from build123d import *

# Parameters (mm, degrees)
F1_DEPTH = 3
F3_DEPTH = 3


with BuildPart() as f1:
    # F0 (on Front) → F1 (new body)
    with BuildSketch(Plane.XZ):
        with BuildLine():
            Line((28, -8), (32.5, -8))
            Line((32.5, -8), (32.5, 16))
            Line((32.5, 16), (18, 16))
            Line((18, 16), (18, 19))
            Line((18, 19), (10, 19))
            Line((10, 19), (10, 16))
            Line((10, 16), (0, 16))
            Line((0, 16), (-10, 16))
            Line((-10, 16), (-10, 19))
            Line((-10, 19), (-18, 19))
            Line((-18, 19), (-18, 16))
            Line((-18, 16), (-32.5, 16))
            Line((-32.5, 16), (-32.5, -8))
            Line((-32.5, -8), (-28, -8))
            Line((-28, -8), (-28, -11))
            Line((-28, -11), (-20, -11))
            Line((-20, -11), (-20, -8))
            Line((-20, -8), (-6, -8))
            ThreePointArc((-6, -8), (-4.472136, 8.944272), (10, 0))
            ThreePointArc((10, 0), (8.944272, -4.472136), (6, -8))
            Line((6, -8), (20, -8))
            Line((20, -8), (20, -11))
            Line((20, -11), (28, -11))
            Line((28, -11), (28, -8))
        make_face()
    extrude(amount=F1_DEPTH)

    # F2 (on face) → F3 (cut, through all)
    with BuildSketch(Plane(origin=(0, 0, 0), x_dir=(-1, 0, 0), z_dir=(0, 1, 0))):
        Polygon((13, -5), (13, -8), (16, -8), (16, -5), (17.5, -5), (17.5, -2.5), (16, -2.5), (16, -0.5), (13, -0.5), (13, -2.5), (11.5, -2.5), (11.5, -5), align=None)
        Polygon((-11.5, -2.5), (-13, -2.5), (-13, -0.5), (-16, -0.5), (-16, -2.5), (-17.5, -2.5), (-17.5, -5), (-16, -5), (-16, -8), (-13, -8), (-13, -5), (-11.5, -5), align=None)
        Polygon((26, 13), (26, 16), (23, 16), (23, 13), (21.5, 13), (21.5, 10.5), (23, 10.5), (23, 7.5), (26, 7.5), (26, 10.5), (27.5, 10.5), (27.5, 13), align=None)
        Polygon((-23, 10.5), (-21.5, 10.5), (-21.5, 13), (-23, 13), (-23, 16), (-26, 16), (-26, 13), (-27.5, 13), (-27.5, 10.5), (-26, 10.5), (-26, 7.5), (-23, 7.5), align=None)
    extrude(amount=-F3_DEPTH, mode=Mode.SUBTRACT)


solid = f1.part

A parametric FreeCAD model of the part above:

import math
import FreeCAD as App
import Part
import Sketcher
Q = App.Units.Quantity

doc = App.newDocument("Part")
body = doc.addObject("PartDesign::Body", "Body")

# Sketch on XZ plane
sketch1 = doc.addObject("Sketcher::SketchObject", "Sketch")
body.addObject(sketch1)
sketch1.AttachmentSupport = (doc.XZ_Plane, [""])
sketch1.MapMode = "FlatFace"
sketch1.addGeometry([
    Part.LineSegment(App.Vector(28, -8, 0), App.Vector(32.5, -8, 0)),  # 0
    Part.LineSegment(App.Vector(32.5, -8, 0), App.Vector(32.5, 16, 0)),  # 1
    Part.LineSegment(App.Vector(32.5, 16, 0), App.Vector(18, 16, 0)),  # 2
    Part.LineSegment(App.Vector(18, 16, 0), App.Vector(18, 19, 0)),  # 3
    Part.LineSegment(App.Vector(18, 19, 0), App.Vector(10, 19, 0)),  # 4
    Part.LineSegment(App.Vector(10, 19, 0), App.Vector(10, 16, 0)),  # 5
    Part.LineSegment(App.Vector(10, 16, 0), App.Vector(-10, 16, 0)),  # 6
    Part.LineSegment(App.Vector(-10, 16, 0), App.Vector(-10, 19, 0)),  # 7
    Part.LineSegment(App.Vector(-10, 19, 0), App.Vector(-18, 19, 0)),  # 8
    Part.LineSegment(App.Vector(-18, 19, 0), App.Vector(-18, 16, 0)),  # 9
    Part.LineSegment(App.Vector(-18, 16, 0), App.Vector(-32.5, 16, 0)),  # 10
    Part.LineSegment(App.Vector(-32.5, 16, 0), App.Vector(-32.5, -8, 0)),  # 11
    Part.LineSegment(App.Vector(-32.5, -8, 0), App.Vector(-28, -8, 0)),  # 12
    Part.LineSegment(App.Vector(-28, -8, 0), App.Vector(-28, -11, 0)),  # 13
    Part.LineSegment(App.Vector(-28, -11, 0), App.Vector(-20, -11, 0)),  # 14
    Part.LineSegment(App.Vector(-20, -11, 0), App.Vector(-20, -8, 0)),  # 15
    Part.LineSegment(App.Vector(-20, -8, 0), App.Vector(-6, -8, 0)),  # 16
    Part.ArcOfCircle(Part.Circle(App.Vector(0, 0, 0), App.Vector(0, 0, 1), 10), math.radians(0), math.radians(233)),  # 17
    Part.ArcOfCircle(Part.Circle(App.Vector(0, 0, 0), App.Vector(0, 0, 1), 10), math.radians(-53), math.radians(0)),  # 18
    Part.LineSegment(App.Vector(6, -8, 0), App.Vector(20, -8, 0)),  # 19
    Part.LineSegment(App.Vector(20, -8, 0), App.Vector(20, -11, 0)),  # 20
    Part.LineSegment(App.Vector(20, -11, 0), App.Vector(28, -11, 0)),  # 21
    Part.LineSegment(App.Vector(28, -11, 0), App.Vector(28, -8, 0)),  # 22
], False)
sketch1.addConstraint([
    Sketcher.Constraint("Coincident", 0, 2, 1, 1),
    Sketcher.Constraint("Coincident", 1, 2, 2, 1),
    Sketcher.Constraint("Coincident", 2, 2, 3, 1),
    Sketcher.Constraint("Coincident", 3, 2, 4, 1),
    Sketcher.Constraint("Coincident", 4, 2, 5, 1),
    Sketcher.Constraint("Coincident", 5, 2, 6, 1),
    Sketcher.Constraint("Coincident", 6, 2, 7, 1),
    Sketcher.Constraint("Coincident", 7, 2, 8, 1),
    Sketcher.Constraint("Coincident", 8, 2, 9, 1),
    Sketcher.Constraint("Coincident", 9, 2, 10, 1),
    Sketcher.Constraint("Coincident", 10, 2, 11, 1),
    Sketcher.Constraint("Coincident", 11, 2, 12, 1),
    Sketcher.Constraint("Coincident", 12, 2, 13, 1),
    Sketcher.Constraint("Coincident", 13, 2, 14, 1),
    Sketcher.Constraint("Coincident", 14, 2, 15, 1),
    Sketcher.Constraint("Coincident", 15, 2, 16, 1),
    Sketcher.Constraint("Coincident", 16, 2, 17, 2),
    Sketcher.Constraint("Tangent", 17, 1, 18, 2),
    Sketcher.Constraint("Coincident", 18, 1, 19, 1),
    Sketcher.Constraint("Coincident", 19, 2, 20, 1),
    Sketcher.Constraint("Coincident", 20, 2, 21, 1),
    Sketcher.Constraint("Coincident", 21, 2, 22, 1),
    Sketcher.Constraint("Coincident", 22, 2, 0, 1),
    Sketcher.Constraint("Horizontal", 0),
    Sketcher.Constraint("Vertical", 1),
    Sketcher.Constraint("Horizontal", 2),
    Sketcher.Constraint("Vertical", 3),
    Sketcher.Constraint("Horizontal", 4),
    Sketcher.Constraint("Vertical", 5),
    Sketcher.Constraint("Horizontal", 6),
    Sketcher.Constraint("Vertical", 7),
    Sketcher.Constraint("Horizontal", 8),
    Sketcher.Constraint("Vertical", 9),
    Sketcher.Constraint("Horizontal", 10),
    Sketcher.Constraint("Vertical", 11),
    Sketcher.Constraint("Horizontal", 12),
    Sketcher.Constraint("Vertical", 13),
    Sketcher.Constraint("Horizontal", 14),
    Sketcher.Constraint("Vertical", 15),
    Sketcher.Constraint("Horizontal", 16),
    Sketcher.Constraint("Horizontal", 19),
    Sketcher.Constraint("Vertical", 20),
    Sketcher.Constraint("Horizontal", 21),
    Sketcher.Constraint("Vertical", 22),
    Sketcher.Constraint("Coincident", 17, 3, -1, 1),
    Sketcher.Constraint("Equal", 17, 18),
    Sketcher.Constraint("Symmetric", 4, 2, 7, 2, -2),
    Sketcher.Constraint("Symmetric", 2, 2, 9, 2, -2),
    Sketcher.Constraint("Symmetric", 0, 2, 11, 2, -2),
    Sketcher.Constraint("Symmetric", 15, 2, 19, 2, -2),
    Sketcher.Constraint("Symmetric", 13, 2, 21, 2, -2),
    Sketcher.Constraint("PointOnObject", 17, 1, -1),
    Sketcher.Constraint("Horizontal", 2, 2, 5, 2),
    Sketcher.Constraint("Horizontal", 12, 2, 15, 2),
    Sketcher.Constraint("Vertical", 5, 2, 17, 1),
    Sketcher.Constraint("Equal", 8, 14),
    Sketcher.Constraint("Equal", 9, 13),
    Sketcher.Constraint("Radius", 17, Q("10 mm")),
    Sketcher.Constraint("DistanceX", 4, 2, 4, 1, Q("8 mm")),
    Sketcher.Constraint("DistanceX", 16, 1, 16, 2, Q("14 mm")),
    Sketcher.Constraint("DistanceY", 1, 1, 1, 2, Q("24 mm")),
    Sketcher.Constraint("DistanceY", 3, 1, 3, 2, Q("3 mm")),
    Sketcher.Constraint("DistanceX", 0, 1, 0, 2, Q("4.5 mm")),
    Sketcher.Constraint("DistanceX", 2, 2, 2, 1, Q("14.5 mm")),
])
pad1 = doc.addObject("PartDesign::Pad", "Pad")
body.addObject(pad1)
pad1.Profile = sketch1
pad1.Length = 3

# Sketch on XZ plane
sketch2 = doc.addObject("Sketcher::SketchObject", "Sketch001")
body.addObject(sketch2)
sketch2.AttachmentSupport = (doc.XZ_Plane, [""])
sketch2.MapMode = "FlatFace"
sketch2.addGeometry([
    Part.LineSegment(App.Vector(-13, -5, 0), App.Vector(-13, -8, 0)),  # 0
    Part.LineSegment(App.Vector(-13, -8, 0), App.Vector(-16, -8, 0)),  # 1
    Part.LineSegment(App.Vector(-16, -8, 0), App.Vector(-16, -5, 0)),  # 2
    Part.LineSegment(App.Vector(-16, -5, 0), App.Vector(-17.5, -5, 0)),  # 3
    Part.LineSegment(App.Vector(-17.5, -5, 0), App.Vector(-17.5, -2.5, 0)),  # 4
    Part.LineSegment(App.Vector(-17.5, -2.5, 0), App.Vector(-16, -2.5, 0)),  # 5
    Part.LineSegment(App.Vector(-16, -2.5, 0), App.Vector(-16, -0.5, 0)),  # 6
    Part.LineSegment(App.Vector(-16, -0.5, 0), App.Vector(-13, -0.5, 0)),  # 7
    Part.LineSegment(App.Vector(-13, -0.5, 0), App.Vector(-13, -2.5, 0)),  # 8
    Part.LineSegment(App.Vector(-13, -2.5, 0), App.Vector(-11.5, -2.5, 0)),  # 9
    Part.LineSegment(App.Vector(-11.5, -2.5, 0), App.Vector(-11.5, -5, 0)),  # 10
    Part.LineSegment(App.Vector(-11.5, -5, 0), App.Vector(-13, -5, 0)),  # 11
    Part.LineSegment(App.Vector(11.5, -2.5, 0), App.Vector(13, -2.5, 0)),  # 12
    Part.LineSegment(App.Vector(13, -2.5, 0), App.Vector(13, -0.5, 0)),  # 13
    Part.LineSegment(App.Vector(13, -0.5, 0), App.Vector(16, -0.5, 0)),  # 14
    Part.LineSegment(App.Vector(16, -0.5, 0), App.Vector(16, -2.5, 0)),  # 15
    Part.LineSegment(App.Vector(16, -2.5, 0), App.Vector(17.5, -2.5, 0)),  # 16
    Part.LineSegment(App.Vector(17.5, -2.5, 0), App.Vector(17.5, -5, 0)),  # 17
    Part.LineSegment(App.Vector(17.5, -5, 0), App.Vector(16, -5, 0)),  # 18
    Part.LineSegment(App.Vector(16, -5, 0), App.Vector(16, -8, 0)),  # 19
    Part.LineSegment(App.Vector(16, -8, 0), App.Vector(13, -8, 0)),  # 20
    Part.LineSegment(App.Vector(13, -8, 0), App.Vector(13, -5, 0)),  # 21
    Part.LineSegment(App.Vector(13, -5, 0), App.Vector(11.5, -5, 0)),  # 22
    Part.LineSegment(App.Vector(11.5, -5, 0), App.Vector(11.5, -2.5, 0)),  # 23
    Part.LineSegment(App.Vector(-26, 13, 0), App.Vector(-26, 16, 0)),  # 24
    Part.LineSegment(App.Vector(-26, 16, 0), App.Vector(-23, 16, 0)),  # 25
    Part.LineSegment(App.Vector(-23, 16, 0), App.Vector(-23, 13, 0)),  # 26
    Part.LineSegment(App.Vector(-23, 13, 0), App.Vector(-21.5, 13, 0)),  # 27
    Part.LineSegment(App.Vector(-21.5, 13, 0), App.Vector(-21.5, 10.5, 0)),  # 28
    Part.LineSegment(App.Vector(-21.5, 10.5, 0), App.Vector(-23, 10.5, 0)),  # 29
    Part.LineSegment(App.Vector(-23, 10.5, 0), App.Vector(-23, 7.5, 0)),  # 30
    Part.LineSegment(App.Vector(-23, 7.5, 0), App.Vector(-26, 7.5, 0)),  # 31
    Part.LineSegment(App.Vector(-26, 7.5, 0), App.Vector(-26, 10.5, 0)),  # 32
    Part.LineSegment(App.Vector(-26, 10.5, 0), App.Vector(-27.5, 10.5, 0)),  # 33
    Part.LineSegment(App.Vector(-27.5, 10.5, 0), App.Vector(-27.5, 13, 0)),  # 34
    Part.LineSegment(App.Vector(-27.5, 13, 0), App.Vector(-26, 13, 0)),  # 35
    Part.LineSegment(App.Vector(23, 10.5, 0), App.Vector(21.5, 10.5, 0)),  # 36
    Part.LineSegment(App.Vector(21.5, 10.5, 0), App.Vector(21.5, 13, 0)),  # 37
    Part.LineSegment(App.Vector(21.5, 13, 0), App.Vector(23, 13, 0)),  # 38
    Part.LineSegment(App.Vector(23, 13, 0), App.Vector(23, 16, 0)),  # 39
    Part.LineSegment(App.Vector(23, 16, 0), App.Vector(26, 16, 0)),  # 40
    Part.LineSegment(App.Vector(26, 16, 0), App.Vector(26, 13, 0)),  # 41
    Part.LineSegment(App.Vector(26, 13, 0), App.Vector(27.5, 13, 0)),  # 42
    Part.LineSegment(App.Vector(27.5, 13, 0), App.Vector(27.5, 10.5, 0)),  # 43
    Part.LineSegment(App.Vector(27.5, 10.5, 0), App.Vector(26, 10.5, 0)),  # 44
    Part.LineSegment(App.Vector(26, 10.5, 0), App.Vector(26, 7.5, 0)),  # 45
    Part.LineSegment(App.Vector(26, 7.5, 0), App.Vector(23, 7.5, 0)),  # 46
    Part.LineSegment(App.Vector(23, 7.5, 0), App.Vector(23, 10.5, 0)),  # 47
], False)
sketch2.addConstraint([
    Sketcher.Constraint("Coincident", 0, 2, 1, 1),
    Sketcher.Constraint("Coincident", 1, 2, 2, 1),
    Sketcher.Constraint("Coincident", 2, 2, 3, 1),
    Sketcher.Constraint("Coincident", 3, 2, 4, 1),
    Sketcher.Constraint("Coincident", 4, 2, 5, 1),
    Sketcher.Constraint("Coincident", 5, 2, 6, 1),
    Sketcher.Constraint("Coincident", 6, 2, 7, 1),
    Sketcher.Constraint("Coincident", 7, 2, 8, 1),
    Sketcher.Constraint("Coincident", 8, 2, 9, 1),
    Sketcher.Constraint("Coincident", 9, 2, 10, 1),
    Sketcher.Constraint("Coincident", 10, 2, 11, 1),
    Sketcher.Constraint("Coincident", 11, 2, 0, 1),
    Sketcher.Constraint("Coincident", 12, 2, 13, 1),
    Sketcher.Constraint("Coincident", 13, 2, 14, 1),
    Sketcher.Constraint("Coincident", 14, 2, 15, 1),
    Sketcher.Constraint("Coincident", 15, 2, 16, 1),
    Sketcher.Constraint("Coincident", 16, 2, 17, 1),
    Sketcher.Constraint("Coincident", 17, 2, 18, 1),
    Sketcher.Constraint("Coincident", 18, 2, 19, 1),
    Sketcher.Constraint("Coincident", 19, 2, 20, 1),
    Sketcher.Constraint("Coincident", 20, 2, 21, 1),
    Sketcher.Constraint("Coincident", 21, 2, 22, 1),
    Sketcher.Constraint("Coincident", 22, 2, 23, 1),
    Sketcher.Constraint("Coincident", 23, 2, 12, 1),
    Sketcher.Constraint("Coincident", 24, 2, 25, 1),
    Sketcher.Constraint("Coincident", 25, 2, 26, 1),
    Sketcher.Constraint("Coincident", 26, 2, 27, 1),
    Sketcher.Constraint("Coincident", 27, 2, 28, 1),
    Sketcher.Constraint("Coincident", 28, 2, 29, 1),
    Sketcher.Constraint("Coincident", 29, 2, 30, 1),
    Sketcher.Constraint("Coincident", 30, 2, 31, 1),
    Sketcher.Constraint("Coincident", 31, 2, 32, 1),
    Sketcher.Constraint("Coincident", 32, 2, 33, 1),
    Sketcher.Constraint("Coincident", 33, 2, 34, 1),
    Sketcher.Constraint("Coincident", 34, 2, 35, 1),
    Sketcher.Constraint("Coincident", 35, 2, 24, 1),
    Sketcher.Constraint("Coincident", 36, 2, 37, 1),
    Sketcher.Constraint("Coincident", 37, 2, 38, 1),
    Sketcher.Constraint("Coincident", 38, 2, 39, 1),
    Sketcher.Constraint("Coincident", 39, 2, 40, 1),
    Sketcher.Constraint("Coincident", 40, 2, 41, 1),
    Sketcher.Constraint("Coincident", 41, 2, 42, 1),
    Sketcher.Constraint("Coincident", 42, 2, 43, 1),
    Sketcher.Constraint("Coincident", 43, 2, 44, 1),
    Sketcher.Constraint("Coincident", 44, 2, 45, 1),
    Sketcher.Constraint("Coincident", 45, 2, 46, 1),
    Sketcher.Constraint("Coincident", 46, 2, 47, 1),
    Sketcher.Constraint("Coincident", 47, 2, 36, 1),
    Sketcher.Constraint("Vertical", 0),
    Sketcher.Constraint("Horizontal", 1),
    Sketcher.Constraint("Vertical", 2),
    Sketcher.Constraint("Horizontal", 3),
    Sketcher.Constraint("Vertical", 4),
    Sketcher.Constraint("Horizontal", 5),
    Sketcher.Constraint("Vertical", 6),
    Sketcher.Constraint("Horizontal", 7),
    Sketcher.Constraint("Vertical", 8),
    Sketcher.Constraint("Horizontal", 9),
    Sketcher.Constraint("Vertical", 10),
    Sketcher.Constraint("Horizontal", 11),
    Sketcher.Constraint("Horizontal", 12),
    Sketcher.Constraint("Vertical", 13),
    Sketcher.Constraint("Horizontal", 14),
    Sketcher.Constraint("Vertical", 15),
    Sketcher.Constraint("Horizontal", 16),
    Sketcher.Constraint("Vertical", 17),
    Sketcher.Constraint("Horizontal", 18),
    Sketcher.Constraint("Vertical", 19),
    Sketcher.Constraint("Horizontal", 20),
    Sketcher.Constraint("Vertical", 21),
    Sketcher.Constraint("Horizontal", 22),
    Sketcher.Constraint("Vertical", 23),
    Sketcher.Constraint("Vertical", 24),
    Sketcher.Constraint("Horizontal", 25),
    Sketcher.Constraint("Vertical", 26),
    Sketcher.Constraint("Horizontal", 27),
    Sketcher.Constraint("Vertical", 28),
    Sketcher.Constraint("Horizontal", 29),
    Sketcher.Constraint("Vertical", 30),
    Sketcher.Constraint("Horizontal", 31),
    Sketcher.Constraint("Vertical", 32),
    Sketcher.Constraint("Horizontal", 33),
    Sketcher.Constraint("Vertical", 34),
    Sketcher.Constraint("Horizontal", 35),
    Sketcher.Constraint("Horizontal", 36),
    Sketcher.Constraint("Vertical", 37),
    Sketcher.Constraint("Horizontal", 38),
    Sketcher.Constraint("Vertical", 39),
    Sketcher.Constraint("Horizontal", 40),
    Sketcher.Constraint("Vertical", 41),
    Sketcher.Constraint("Horizontal", 42),
    Sketcher.Constraint("Vertical", 43),
    Sketcher.Constraint("Horizontal", 44),
    Sketcher.Constraint("Vertical", 45),
    Sketcher.Constraint("Horizontal", 46),
    Sketcher.Constraint("Vertical", 47),
    Sketcher.Constraint("Symmetric", 8, 2, 12, 2, -2),
    Sketcher.Constraint("Symmetric", 6, 2, 14, 2, -2),
    Sketcher.Constraint("Symmetric", 4, 2, 16, 2, -2),
    Sketcher.Constraint("Symmetric", 2, 2, 18, 2, -2),
    Sketcher.Constraint("Symmetric", 0, 2, 20, 2, -2),
    Sketcher.Constraint("Symmetric", 10, 2, 22, 2, -2),
    Sketcher.Constraint("Symmetric", 28, 2, 36, 2, -2),
    Sketcher.Constraint("Symmetric", 26, 2, 38, 2, -2),
    Sketcher.Constraint("Symmetric", 24, 2, 40, 2, -2),
    Sketcher.Constraint("Symmetric", 34, 2, 42, 2, -2),
    Sketcher.Constraint("Symmetric", 32, 2, 44, 2, -2),
    Sketcher.Constraint("Symmetric", 30, 2, 46, 2, -2),
    Sketcher.Constraint("Horizontal", 5, 2, 8, 2),
    Sketcher.Constraint("Horizontal", 3, 2, 10, 2),
    Sketcher.Constraint("Horizontal", 29, 2, 32, 2),
    Sketcher.Constraint("Horizontal", 27, 2, 34, 2),
    Sketcher.Constraint("Vertical", 2, 2, 5, 2),
    Sketcher.Constraint("Vertical", 0, 2, 7, 2),
    Sketcher.Constraint("Vertical", 26, 2, 29, 2),
    Sketcher.Constraint("Vertical", 24, 2, 31, 2),
    Sketcher.Constraint("Equal", 5, 9),
    Sketcher.Constraint("Equal", 20, 25),
    Sketcher.Constraint("Equal", 22, 27),
    Sketcher.Constraint("Equal", 29, 33),
    Sketcher.Constraint("Equal", 46, 0),
    Sketcher.Constraint("Equal", 21, 24),
    Sketcher.Constraint("Equal", 23, 28),
    Sketcher.Constraint("Equal", 26, 30),
    Sketcher.Constraint("DistanceX", 1, 2, 1, 1, Q("3 mm")),
    Sketcher.Constraint("DistanceY", 6, 1, 6, 2, Q("2 mm")),
    Sketcher.Constraint("DistanceX", 3, 2, 3, 1, Q("1.5 mm")),
    Sketcher.Constraint("DistanceY", 4, 1, 4, 2, Q("2.5 mm")),
    Sketcher.Constraint("DistanceX", 0, 2, -1, 1, Q("13 mm")),
    Sketcher.Constraint("DistanceY", 0, 2, -1, 1, Q("8 mm")),
    Sketcher.Constraint("DistanceX", 24, 2, -1, 1, Q("26 mm")),
    Sketcher.Constraint("DistanceY", -1, 1, 24, 2, Q("16 mm")),
])
pocket1 = doc.addObject("PartDesign::Pocket", "Pocket")
body.addObject(pocket1)
pocket1.Profile = sketch2
pocket1.Type = "ThroughAll"
pocket1.Reversed = True

doc.recompute()
